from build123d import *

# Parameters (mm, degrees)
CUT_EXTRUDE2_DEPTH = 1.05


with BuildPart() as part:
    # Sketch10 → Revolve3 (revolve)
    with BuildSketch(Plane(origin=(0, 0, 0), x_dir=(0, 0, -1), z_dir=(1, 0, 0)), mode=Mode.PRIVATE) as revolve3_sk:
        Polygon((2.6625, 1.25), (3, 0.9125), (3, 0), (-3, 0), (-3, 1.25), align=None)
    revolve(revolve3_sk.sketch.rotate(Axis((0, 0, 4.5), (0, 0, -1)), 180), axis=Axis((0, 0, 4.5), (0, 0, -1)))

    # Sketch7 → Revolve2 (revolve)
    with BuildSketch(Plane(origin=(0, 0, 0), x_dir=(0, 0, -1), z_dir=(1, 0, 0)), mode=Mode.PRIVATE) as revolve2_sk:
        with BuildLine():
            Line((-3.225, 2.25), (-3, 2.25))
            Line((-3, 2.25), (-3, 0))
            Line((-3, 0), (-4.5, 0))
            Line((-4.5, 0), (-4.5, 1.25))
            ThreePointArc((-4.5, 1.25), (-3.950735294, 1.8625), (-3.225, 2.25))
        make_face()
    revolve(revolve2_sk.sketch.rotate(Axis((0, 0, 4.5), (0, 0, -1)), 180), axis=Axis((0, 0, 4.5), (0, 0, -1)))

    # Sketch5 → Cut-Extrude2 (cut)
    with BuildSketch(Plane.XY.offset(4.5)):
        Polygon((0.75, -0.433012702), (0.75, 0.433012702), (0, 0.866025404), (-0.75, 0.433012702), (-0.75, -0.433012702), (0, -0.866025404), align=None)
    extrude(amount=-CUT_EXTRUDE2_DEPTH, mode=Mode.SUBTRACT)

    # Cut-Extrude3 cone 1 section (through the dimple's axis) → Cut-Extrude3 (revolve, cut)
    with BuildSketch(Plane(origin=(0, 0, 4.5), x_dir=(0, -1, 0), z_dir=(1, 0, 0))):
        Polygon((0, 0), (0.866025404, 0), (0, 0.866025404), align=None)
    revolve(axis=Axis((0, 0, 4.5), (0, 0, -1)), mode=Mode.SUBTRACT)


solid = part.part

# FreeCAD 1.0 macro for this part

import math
import FreeCAD as App
import Part
import Sketcher
from FreeCAD import Vector
Q = App.Units.Quantity

doc = App.newDocument("Part")
body = doc.addObject("PartDesign::Body", "Body")

sketch1 = doc.addObject("Sketcher::SketchObject", "Sketch")
body.addObject(sketch1)
sketch1.AttachmentSupport = (doc.YZ_Plane, [""])
sketch1.MapMode = "FlatFace"
sketch1.addGeometry([
    Part.LineSegment(Vector(0.91, -3, 0), Vector(1.25, -2.66, 0)),
    Part.LineSegment(Vector(1.25, -2.66, 0), Vector(1.25, 3, 0)),
    Part.LineSegment(Vector(1.25, 3, 0), Vector(0, 3, 0)),
    Part.LineSegment(Vector(0, 3, 0), Vector(0, -3, 0)),
    Part.LineSegment(Vector(0, -3, 0), Vector(0.91, -3, 0)),
], False)
sketch1.addConstraint([
    Sketcher.Constraint("Coincident", 0, 2, 1, 1),
    Sketcher.Constraint("Coincident", 1, 2, 2, 1),
    Sketcher.Constraint("Coincident", 2, 2, 3, 1),
    Sketcher.Constraint("Coincident", 3, 2, 4, 1),
    Sketcher.Constraint("Coincident", 4, 2, 0, 1),
    Sketcher.Constraint("Vertical", 1),
    Sketcher.Constraint("Horizontal", 2),
    Sketcher.Constraint("Vertical", 3),
    Sketcher.Constraint("Horizontal", 4),
    Sketcher.Constraint("Symmetric", 2, 2, 3, 2, -1, 1),
    Sketcher.Constraint("DistanceY", 3, 2, 3, 1, Q("6 mm")),
    Sketcher.Constraint("Angle", 0, Q("45 deg")),
    Sketcher.Constraint("DistanceX", 2, 2, 2, 1, Q("1.25 mm")),
    Sketcher.Constraint("DistanceX", 4, 1, 4, 2, Q("0.9125 mm")),
])
revolution = doc.addObject("PartDesign::Revolution", "Revolution")
body.addObject(revolution)
revolution.Profile = sketch1
revolution.ReferenceAxis = (sketch1, ["V_Axis"])
revolution.Angle = 360

sketch2 = doc.addObject("Sketcher::SketchObject", "Sketch001")
body.addObject(sketch2)
sketch2.AttachmentSupport = (doc.YZ_Plane, [""])
sketch2.MapMode = "FlatFace"
sketch2.addGeometry([
    Part.LineSegment(Vector(2.25, 3, 0), Vector(2.25, 3.23, 0)),
    Part.ArcOfCircle(Part.Circle(Vector(0, 2.49, 0), Vector(0, 0, 1), 2.37), math.radians(18), math.radians(58)),
    Part.LineSegment(Vector(1.25, 4.5, 0), Vector(0, 4.5, 0)),
    Part.LineSegment(Vector(0, 4.5, 0), Vector(0, 3, 0)),
    Part.LineSegment(Vector(0, 3, 0), Vector(2.25, 3, 0)),
], False)
sketch2.addConstraint([
    Sketcher.Constraint("Coincident", 0, 2, 1, 1),
    Sketcher.Constraint("Coincident", 1, 2, 2, 1),
    Sketcher.Constraint("Coincident", 2, 2, 3, 1),
    Sketcher.Constraint("Coincident", 3, 2, 4, 1),
    Sketcher.Constraint("Coincident", 4, 2, 0, 1),
    Sketcher.Constraint("Vertical", 0),
    Sketcher.Constraint("Horizontal", 2),
    Sketcher.Constraint("Vertical", 3),
    Sketcher.Constraint("Horizontal", 4),
    Sketcher.Constraint("PointOnObject", 1, 3, -2),
    Sketcher.Constraint("PointOnObject", 2, 2, -2),
    Sketcher.Constraint("DistanceY", 3, 2, 3, 1, Q("1.5 mm")),
    Sketcher.Constraint("DistanceY", -1, 1, 3, 2, Q("3 mm")),
    Sketcher.Constraint("DistanceX", 1, 2, 0, 2, Q("1 mm")),
    Sketcher.Constraint("DistanceX", 2, 2, 2, 1, Q("1.25 mm")),
    Sketcher.Constraint("DistanceY", 0, 1, 0, 2, Q("0.225 mm")),
])
revolution2 = doc.addObject("PartDesign::Revolution", "Revolution001")
body.addObject(revolution2)
revolution2.Profile = sketch2
revolution2.ReferenceAxis = (sketch2, ["V_Axis"])
revolution2.Angle = 360

sketch3 = doc.addObject("Sketcher::SketchObject", "Sketch002")
body.addObject(sketch3)
sketch3.AttachmentSupport = (doc.XY_Plane, [""])
sketch3.MapMode = "FlatFace"
sketch3.AttachmentOffset = App.Placement(Vector(0, 0, 4.5), App.Rotation())
sketch3.addGeometry([
    Part.LineSegment(Vector(0.8, -0.4, 0), Vector(0.8, 0.4, 0)),
    Part.LineSegment(Vector(0.8, 0.4, 0), Vector(0, 0.9, 0)),
    Part.LineSegment(Vector(0, 0.9, 0), Vector(-0.8, 0.4, 0)),
    Part.LineSegment(Vector(-0.8, 0.4, 0), Vector(-0.8, -0.4, 0)),
    Part.LineSegment(Vector(-0.8, -0.4, 0), Vector(0, -0.9, 0)),
    Part.LineSegment(Vector(0, -0.9, 0), Vector(0.8, -0.4, 0)),
], False)
sketch3.addConstraint([
    Sketcher.Constraint("Coincident", 0, 2, 1, 1),
    Sketcher.Constraint("Coincident", 1, 2, 2, 1),
    Sketcher.Constraint("Coincident", 2, 2, 3, 1),
    Sketcher.Constraint("Coincident", 3, 2, 4, 1),
    Sketcher.Constraint("Coincident", 4, 2, 5, 1),
    Sketcher.Constraint("Coincident", 5, 2, 0, 1),
    Sketcher.Constraint("Vertical", 0),
    Sketcher.Constraint("Vertical", 3),
    Sketcher.Constraint("Symmetric", 0, 2, 3, 2, -1, 1),
    Sketcher.Constraint("Symmetric", 1, 2, 4, 2, -1, 1),
    Sketcher.Constraint("PointOnObject", 1, 2, -2),
    Sketcher.Constraint("Parallel", 2, 5),
    Sketcher.Constraint("Horizontal", 0, 2, 2, 2),
    Sketcher.Constraint("Angle", 1, Q("150 deg")),
    Sketcher.Constraint("DistanceX", 2, 2, 0, 2, Q("1.5 mm")),
    Sketcher.Constraint("DistanceY", 0, 1, 0, 2, Q("0.866025 mm")),
])
pocket1 = doc.addObject("PartDesign::Pocket", "Pocket")
body.addObject(pocket1)
pocket1.Profile = sketch3
pocket1.Length = 1.05

sketch4 = doc.addObject("Sketcher::SketchObject", "Sketch003")
body.addObject(sketch4)
sketch4.AttachmentSupport = (doc.YZ_Plane, [""])
sketch4.MapMode = "FlatFace"
sketch4.addGeometry([
    Part.LineSegment(Vector(0, 4.5, 0), Vector(-0.9, 4.5, 0)),
    Part.LineSegment(Vector(-0.9, 4.5, 0), Vector(0, 3.6, 0)),
    Part.LineSegment(Vector(0, 3.6, 0), Vector(0, 4.5, 0)),
], False)
sketch4.addConstraint([
    Sketcher.Constraint("Coincident", 0, 2, 1, 1),
    Sketcher.Constraint("Coincident", 1, 2, 2, 1),
    Sketcher.Constraint("Coincident", 2, 2, 0, 1),
    Sketcher.Constraint("Horizontal", 0),
    Sketcher.Constraint("Vertical", 2),
    Sketcher.Constraint("PointOnObject", 1, 2, -2),
    Sketcher.Constraint("Equal", 0, 2),
    Sketcher.Constraint("DistanceY", -1, 1, 0, 2, Q("4.5 mm")),
    Sketcher.Constraint("DistanceX", 0, 2, 0, 1, Q("0.866025 mm")),
])
groove = doc.addObject("PartDesign::Groove", "Groove")
body.addObject(groove)
groove.Profile = sketch4
groove.ReferenceAxis = (sketch4, ["V_Axis"])
groove.Angle = 360

doc.recompute()
